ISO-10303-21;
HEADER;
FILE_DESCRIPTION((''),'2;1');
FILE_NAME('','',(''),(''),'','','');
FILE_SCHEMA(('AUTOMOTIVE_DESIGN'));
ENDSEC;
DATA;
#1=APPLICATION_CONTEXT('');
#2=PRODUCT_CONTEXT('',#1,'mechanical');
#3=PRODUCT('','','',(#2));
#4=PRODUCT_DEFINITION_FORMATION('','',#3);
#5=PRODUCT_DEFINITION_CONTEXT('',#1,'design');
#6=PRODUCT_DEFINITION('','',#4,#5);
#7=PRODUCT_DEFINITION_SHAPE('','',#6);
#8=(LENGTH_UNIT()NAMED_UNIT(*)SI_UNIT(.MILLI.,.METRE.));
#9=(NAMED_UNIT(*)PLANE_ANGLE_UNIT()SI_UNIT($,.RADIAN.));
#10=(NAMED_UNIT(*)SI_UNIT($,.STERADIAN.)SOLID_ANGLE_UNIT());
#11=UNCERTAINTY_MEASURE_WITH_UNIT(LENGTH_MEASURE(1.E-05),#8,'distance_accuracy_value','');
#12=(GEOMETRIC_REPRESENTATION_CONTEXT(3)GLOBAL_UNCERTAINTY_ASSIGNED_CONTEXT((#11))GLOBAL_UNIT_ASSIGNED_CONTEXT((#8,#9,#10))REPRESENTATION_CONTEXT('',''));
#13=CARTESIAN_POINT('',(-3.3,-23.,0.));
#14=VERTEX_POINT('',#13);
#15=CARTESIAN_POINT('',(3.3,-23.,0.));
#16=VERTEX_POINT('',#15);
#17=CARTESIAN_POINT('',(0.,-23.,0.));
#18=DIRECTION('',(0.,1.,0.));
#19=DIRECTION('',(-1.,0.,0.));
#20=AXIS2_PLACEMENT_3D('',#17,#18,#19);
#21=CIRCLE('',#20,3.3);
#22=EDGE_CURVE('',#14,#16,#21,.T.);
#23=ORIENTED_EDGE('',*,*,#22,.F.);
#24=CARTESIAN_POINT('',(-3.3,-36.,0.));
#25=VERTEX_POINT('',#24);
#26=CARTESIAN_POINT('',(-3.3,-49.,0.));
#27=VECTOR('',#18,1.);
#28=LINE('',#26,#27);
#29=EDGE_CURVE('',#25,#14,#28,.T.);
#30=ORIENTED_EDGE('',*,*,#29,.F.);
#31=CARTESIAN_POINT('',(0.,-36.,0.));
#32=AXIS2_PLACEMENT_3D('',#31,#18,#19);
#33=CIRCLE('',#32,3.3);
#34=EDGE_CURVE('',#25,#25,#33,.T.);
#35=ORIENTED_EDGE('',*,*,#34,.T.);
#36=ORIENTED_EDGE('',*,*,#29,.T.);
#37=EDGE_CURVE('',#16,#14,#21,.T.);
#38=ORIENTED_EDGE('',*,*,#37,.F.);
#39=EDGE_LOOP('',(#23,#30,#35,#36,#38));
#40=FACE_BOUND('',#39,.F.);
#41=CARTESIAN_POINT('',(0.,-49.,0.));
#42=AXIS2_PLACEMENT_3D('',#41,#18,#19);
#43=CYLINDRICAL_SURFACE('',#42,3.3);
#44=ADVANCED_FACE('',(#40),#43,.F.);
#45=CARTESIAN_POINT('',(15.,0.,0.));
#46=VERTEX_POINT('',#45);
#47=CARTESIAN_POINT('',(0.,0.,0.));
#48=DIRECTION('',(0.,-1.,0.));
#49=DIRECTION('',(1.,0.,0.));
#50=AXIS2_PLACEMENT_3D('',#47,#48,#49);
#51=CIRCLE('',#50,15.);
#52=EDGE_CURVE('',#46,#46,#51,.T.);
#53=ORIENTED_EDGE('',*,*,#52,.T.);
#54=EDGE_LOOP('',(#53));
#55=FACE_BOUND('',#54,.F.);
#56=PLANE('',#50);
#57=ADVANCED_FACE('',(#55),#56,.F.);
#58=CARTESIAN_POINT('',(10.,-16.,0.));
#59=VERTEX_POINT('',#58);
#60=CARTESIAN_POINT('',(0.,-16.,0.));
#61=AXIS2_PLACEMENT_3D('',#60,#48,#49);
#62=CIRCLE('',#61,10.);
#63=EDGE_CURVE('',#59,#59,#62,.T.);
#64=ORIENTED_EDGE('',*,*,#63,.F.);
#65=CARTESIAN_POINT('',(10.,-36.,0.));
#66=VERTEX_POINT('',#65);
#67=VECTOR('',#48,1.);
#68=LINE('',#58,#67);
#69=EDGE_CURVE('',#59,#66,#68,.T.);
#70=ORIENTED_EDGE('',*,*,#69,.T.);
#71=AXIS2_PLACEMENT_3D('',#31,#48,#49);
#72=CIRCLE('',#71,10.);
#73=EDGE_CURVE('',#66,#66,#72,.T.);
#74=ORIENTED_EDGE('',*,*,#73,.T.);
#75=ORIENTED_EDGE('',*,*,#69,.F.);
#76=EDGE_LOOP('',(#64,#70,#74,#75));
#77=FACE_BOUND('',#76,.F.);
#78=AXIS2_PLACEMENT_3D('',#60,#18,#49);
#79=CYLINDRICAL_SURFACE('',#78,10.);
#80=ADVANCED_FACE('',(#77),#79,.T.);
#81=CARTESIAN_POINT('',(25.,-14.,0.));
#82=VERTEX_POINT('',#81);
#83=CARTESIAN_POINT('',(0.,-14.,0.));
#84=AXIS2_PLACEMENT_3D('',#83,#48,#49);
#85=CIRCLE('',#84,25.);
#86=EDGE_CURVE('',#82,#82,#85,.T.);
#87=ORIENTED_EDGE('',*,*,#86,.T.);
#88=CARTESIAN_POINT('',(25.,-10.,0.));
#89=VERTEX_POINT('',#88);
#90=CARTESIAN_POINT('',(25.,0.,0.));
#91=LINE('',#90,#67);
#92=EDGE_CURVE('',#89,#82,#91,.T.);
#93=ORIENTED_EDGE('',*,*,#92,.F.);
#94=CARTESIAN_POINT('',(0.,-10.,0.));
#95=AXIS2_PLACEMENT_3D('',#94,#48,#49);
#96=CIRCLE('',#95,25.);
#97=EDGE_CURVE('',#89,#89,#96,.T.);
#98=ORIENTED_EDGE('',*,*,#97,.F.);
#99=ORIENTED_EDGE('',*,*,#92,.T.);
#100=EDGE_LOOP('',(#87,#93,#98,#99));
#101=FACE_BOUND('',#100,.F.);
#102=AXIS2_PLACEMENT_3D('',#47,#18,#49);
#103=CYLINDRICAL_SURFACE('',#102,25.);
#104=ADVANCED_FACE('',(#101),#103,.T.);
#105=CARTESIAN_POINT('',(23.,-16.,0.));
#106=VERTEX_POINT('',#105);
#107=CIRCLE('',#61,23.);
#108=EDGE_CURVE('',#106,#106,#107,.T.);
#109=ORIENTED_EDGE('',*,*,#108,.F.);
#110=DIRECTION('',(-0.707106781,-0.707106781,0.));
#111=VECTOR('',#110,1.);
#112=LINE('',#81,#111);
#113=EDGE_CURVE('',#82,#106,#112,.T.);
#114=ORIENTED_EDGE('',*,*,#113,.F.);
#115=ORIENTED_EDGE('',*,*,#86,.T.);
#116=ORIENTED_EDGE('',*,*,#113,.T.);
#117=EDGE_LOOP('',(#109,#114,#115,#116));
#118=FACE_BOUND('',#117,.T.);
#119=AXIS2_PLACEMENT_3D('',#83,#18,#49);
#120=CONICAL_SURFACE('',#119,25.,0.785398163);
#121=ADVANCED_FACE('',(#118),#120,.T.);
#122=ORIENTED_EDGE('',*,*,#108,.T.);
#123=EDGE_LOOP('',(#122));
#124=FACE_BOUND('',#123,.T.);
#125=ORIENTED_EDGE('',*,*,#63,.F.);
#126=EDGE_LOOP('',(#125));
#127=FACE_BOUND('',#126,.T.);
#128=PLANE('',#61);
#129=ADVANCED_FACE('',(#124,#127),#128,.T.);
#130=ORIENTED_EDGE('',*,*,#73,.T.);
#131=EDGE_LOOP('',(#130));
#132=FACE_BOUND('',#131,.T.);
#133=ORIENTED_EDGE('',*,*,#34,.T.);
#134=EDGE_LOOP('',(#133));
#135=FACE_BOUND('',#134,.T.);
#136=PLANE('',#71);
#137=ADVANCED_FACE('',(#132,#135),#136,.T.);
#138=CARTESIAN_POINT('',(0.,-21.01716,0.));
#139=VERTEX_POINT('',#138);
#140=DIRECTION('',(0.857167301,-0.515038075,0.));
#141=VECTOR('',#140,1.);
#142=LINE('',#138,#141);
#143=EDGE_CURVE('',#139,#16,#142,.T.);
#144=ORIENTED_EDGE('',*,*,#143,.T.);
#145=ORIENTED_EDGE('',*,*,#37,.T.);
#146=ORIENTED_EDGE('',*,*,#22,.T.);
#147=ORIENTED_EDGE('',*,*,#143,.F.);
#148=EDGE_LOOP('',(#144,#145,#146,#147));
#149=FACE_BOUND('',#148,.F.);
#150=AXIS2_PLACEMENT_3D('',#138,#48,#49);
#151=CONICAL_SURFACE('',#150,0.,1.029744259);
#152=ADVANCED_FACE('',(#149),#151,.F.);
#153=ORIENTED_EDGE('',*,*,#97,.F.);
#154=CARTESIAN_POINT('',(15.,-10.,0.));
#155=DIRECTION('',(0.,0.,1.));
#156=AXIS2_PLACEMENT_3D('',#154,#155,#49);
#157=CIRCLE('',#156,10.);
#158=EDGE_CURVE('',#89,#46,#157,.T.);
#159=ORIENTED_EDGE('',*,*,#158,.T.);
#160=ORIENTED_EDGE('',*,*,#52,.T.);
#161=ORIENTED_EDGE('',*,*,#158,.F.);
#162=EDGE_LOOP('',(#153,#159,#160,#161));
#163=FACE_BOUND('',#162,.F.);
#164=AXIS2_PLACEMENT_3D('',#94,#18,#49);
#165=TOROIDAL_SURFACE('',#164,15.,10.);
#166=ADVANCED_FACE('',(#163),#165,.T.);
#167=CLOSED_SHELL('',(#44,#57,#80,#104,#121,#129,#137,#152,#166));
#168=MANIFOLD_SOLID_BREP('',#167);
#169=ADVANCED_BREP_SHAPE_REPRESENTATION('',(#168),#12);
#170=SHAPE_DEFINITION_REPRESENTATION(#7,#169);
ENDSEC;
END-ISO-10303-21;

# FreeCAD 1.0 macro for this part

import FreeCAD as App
import Part
import Sketcher
from FreeCAD import Vector
Q = App.Units.Quantity


def edges_at(feature, points):
    """Names of the edges that pass closest to the given points."""
    edges = feature.Shape.Edges
    near = lambda p: min(range(len(edges)), key=lambda i: edges[i].distToShape(Part.Vertex(*p))[0])
    return sorted({f"Edge{near(p) + 1}" for p in points})

doc = App.newDocument("Part")
body = doc.addObject("PartDesign::Body", "Body")

# Sketch on XZ plane
sketch1 = body.newObject("Sketcher::SketchObject", "Sketch")
sketch1.AttachmentSupport = (doc.getObject("XZ_Plane"), [""])
sketch1.MapMode = "FlatFace"
sketch1.addGeometry(Part.Circle(Vector(0, 0, 0), Vector(0, 0, 1), 25), False)
sketch1.addConstraint([
    Sketcher.Constraint("Coincident", 0, 3, -1, 1),
    Sketcher.Constraint("Diameter", 0, Q("50 mm")),
])
pad1 = body.newObject("PartDesign::Pad", "Pad")
pad1.Profile = sketch1
pad1.Length = 16

# Sketch on XZ plane
sketch2 = body.newObject("Sketcher::SketchObject", "Sketch001")
sketch2.AttachmentSupport = (doc.getObject("XZ_Plane"), [""])
sketch2.MapMode = "FlatFace"
sketch2.AttachmentOffset = App.Placement(Vector(0, 0, 16), App.Rotation())
sketch2.addGeometry(Part.Circle(Vector(0, 0, 0), Vector(0, 0, 1), 10), False)
sketch2.addConstraint([
    Sketcher.Constraint("Coincident", 0, 3, -1, 1),
    Sketcher.Constraint("Diameter", 0, Q("20 mm")),
])
pad2 = body.newObject("PartDesign::Pad", "Pad001")
pad2.Profile = sketch2
pad2.Length = 20
doc.recompute()

fillet = body.newObject("PartDesign::Fillet", "Fillet")
fillet.Base = (pad2, edges_at(pad2, [(-25, 0, 0)]))
fillet.Radius = 10
doc.recompute()

chamfer = body.newObject("PartDesign::Chamfer", "Chamfer")
chamfer.Base = (fillet, edges_at(fillet, [(-25, -16, 0)]))
chamfer.Size = 2

# Sketch on XZ plane
sketch3 = body.newObject("Sketcher::SketchObject", "Sketch002")
sketch3.AttachmentSupport = (doc.getObject("XZ_Plane"), [""])
sketch3.MapMode = "FlatFace"
sketch3.AttachmentOffset = App.Placement(Vector(0, 0, 36), App.Rotation())
sketch3.addGeometry(Part.Circle(Vector(0, 0, 0), Vector(0, 0, 1), 3.3), False)
sketch3.addConstraint([
    Sketcher.Constraint("Coincident", 0, 3, -1, 1),
    Sketcher.Constraint("Diameter", 0, Q("6.6 mm")),
])
doc.recompute()
hole = body.newObject("PartDesign::Hole", "Hole")
hole.Profile = sketch3
hole.ThreadType = "None"
hole.Diameter = 6.6
hole.DepthType = "Dimension"
hole.Depth = 13
hole.DrillPoint = "Angled"
hole.DrillPointAngle = 118

doc.recompute()
